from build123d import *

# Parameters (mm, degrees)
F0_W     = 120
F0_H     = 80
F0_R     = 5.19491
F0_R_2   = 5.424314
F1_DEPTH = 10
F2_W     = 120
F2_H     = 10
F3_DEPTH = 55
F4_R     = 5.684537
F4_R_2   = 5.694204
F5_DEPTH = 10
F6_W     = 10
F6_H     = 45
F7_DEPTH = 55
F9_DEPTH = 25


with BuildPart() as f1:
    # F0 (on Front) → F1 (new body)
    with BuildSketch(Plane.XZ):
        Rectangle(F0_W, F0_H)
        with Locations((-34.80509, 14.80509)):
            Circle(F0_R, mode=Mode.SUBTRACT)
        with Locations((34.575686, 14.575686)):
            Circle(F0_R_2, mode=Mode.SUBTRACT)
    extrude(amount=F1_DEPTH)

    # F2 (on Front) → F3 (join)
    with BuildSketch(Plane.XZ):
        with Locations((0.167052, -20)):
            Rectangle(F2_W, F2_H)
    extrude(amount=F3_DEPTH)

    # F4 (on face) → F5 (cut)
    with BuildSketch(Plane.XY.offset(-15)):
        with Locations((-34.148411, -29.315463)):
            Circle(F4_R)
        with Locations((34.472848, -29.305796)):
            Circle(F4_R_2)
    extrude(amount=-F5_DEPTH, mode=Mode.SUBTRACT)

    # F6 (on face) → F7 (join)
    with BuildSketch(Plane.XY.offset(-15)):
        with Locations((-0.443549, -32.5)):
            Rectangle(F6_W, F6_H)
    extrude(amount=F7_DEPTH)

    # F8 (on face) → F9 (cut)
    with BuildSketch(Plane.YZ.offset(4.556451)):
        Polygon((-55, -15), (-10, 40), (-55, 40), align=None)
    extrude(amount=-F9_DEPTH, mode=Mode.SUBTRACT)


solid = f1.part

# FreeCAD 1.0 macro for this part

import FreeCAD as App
import Part
import Sketcher


def add_polygon(sketch, points):
    """Adds a closed chain of lines whose ends are joined by coincident constraints."""
    first, n = sketch.GeometryCount, len(points)
    for a, b in zip(points, points[1:] + points[:1]):
        sketch.addGeometry(Part.LineSegment(App.Vector(*a, 0), App.Vector(*b, 0)), False)
    for i in range(n):
        sketch.addConstraint(Sketcher.Constraint("Coincident", first + i, 2, first + (i + 1) % n, 1))

doc = App.newDocument("Part")
body = doc.addObject("PartDesign::Body", "Body")

# Sketch on XZ plane
sketch1 = body.newObject("Sketcher::SketchObject", "Sketch")
sketch1.AttachmentSupport = (doc.getObject("XZ_Plane"), [""])
sketch1.MapMode = "FlatFace"
add_polygon(sketch1, [(-60, 40), (-60, -40), (60, -40), (60, 40)])  # lines 0-3
sketch1.addGeometry(Part.Circle(App.Vector(35, 15, 0), App.Vector(0, 0, 1), 5), False)  # 4
sketch1.addGeometry(Part.Circle(App.Vector(-35, 15, 0), App.Vector(0, 0, 1), 5), False)  # 5
sketch1.addConstraint(Sketcher.Constraint("Vertical", 0))
sketch1.addConstraint(Sketcher.Constraint("Horizontal", 1))
sketch1.addConstraint(Sketcher.Constraint("Vertical", 2))
sketch1.addConstraint(Sketcher.Constraint("Horizontal", 3))
sketch1.addConstraint(Sketcher.Constraint("Symmetric", 0, 2, 2, 2, -1, 1))
sketch1.addConstraint(Sketcher.Constraint("DistanceX", 1, 1, 1, 2, 120.0))
sketch1.addConstraint(Sketcher.Constraint("DistanceY", 0, 2, 0, 1, 80.0))
sketch1.addConstraint(Sketcher.Constraint("Diameter", 5, 10.38982))
sketch1.addConstraint(Sketcher.Constraint("Diameter", 4, 10.848628))
sketch1.addConstraint(Sketcher.Constraint("DistanceX", 5, 3, -1, 1, 34.80509))
sketch1.addConstraint(Sketcher.Constraint("DistanceY", -1, 1, 5, 3, 14.80509))
sketch1.addConstraint(Sketcher.Constraint("DistanceX", -1, 1, 4, 3, 34.575686))
sketch1.addConstraint(Sketcher.Constraint("DistanceY", -1, 1, 4, 3, 14.575686))
pad1 = body.newObject("PartDesign::Pad", "Pad")
pad1.Profile = sketch1
pad1.Length = 10

# Sketch on XZ plane
sketch2 = body.newObject("Sketcher::SketchObject", "Sketch001")
sketch2.AttachmentSupport = (doc.getObject("XZ_Plane"), [""])
sketch2.MapMode = "FlatFace"
add_polygon(sketch2, [(-60, -15), (-60, -25), (60, -25), (60, -15)])  # lines 0-3
sketch2.addConstraint(Sketcher.Constraint("Vertical", 0))
sketch2.addConstraint(Sketcher.Constraint("Horizontal", 1))
sketch2.addConstraint(Sketcher.Constraint("Vertical", 2))
sketch2.addConstraint(Sketcher.Constraint("Horizontal", 3))
sketch2.addConstraint(Sketcher.Constraint("DistanceX", 1, 1, 1, 2, 120.0))
sketch2.addConstraint(Sketcher.Constraint("DistanceY", 0, 2, 0, 1, 10.0))
sketch2.addConstraint(Sketcher.Constraint("DistanceY", 0, 2, -1, 1, 25.0))
sketch2.addConstraint(Sketcher.Constraint("DistanceX", 0, 2, -1, 1, 59.832948))
pad2 = body.newObject("PartDesign::Pad", "Pad001")
pad2.Profile = sketch2
pad2.Length = 55

# Sketch on XY plane
sketch3 = body.newObject("Sketcher::SketchObject", "Sketch002")
sketch3.AttachmentSupport = (doc.getObject("XY_Plane"), [""])
sketch3.MapMode = "FlatFace"
sketch3.AttachmentOffset = App.Placement(App.Vector(0, 0, -15), App.Rotation())
sketch3.addGeometry(Part.Circle(App.Vector(-34, -29, 0), App.Vector(0, 0, 1), 6), False)
sketch3.addGeometry(Part.Circle(App.Vector(34, -29, 0), App.Vector(0, 0, 1), 6), False)
sketch3.addConstraint(Sketcher.Constraint("Diameter", 0, 11.369074))
sketch3.addConstraint(Sketcher.Constraint("Diameter", 1, 11.388408))
sketch3.addConstraint(Sketcher.Constraint("DistanceX", 0, 3, -1, 1, 34.148411))
sketch3.addConstraint(Sketcher.Constraint("DistanceX", 0, 3, 1, 3, 68.621259))
sketch3.addConstraint(Sketcher.Constraint("DistanceY", 0, 3, -1, 1, 29.315463))
sketch3.addConstraint(Sketcher.Constraint("DistanceY", 1, 3, -1, 1, 29.305796))
pocket1 = body.newObject("PartDesign::Pocket", "Pocket")
pocket1.Profile = sketch3
pocket1.Length = 10

# Sketch on XY plane
sketch4 = body.newObject("Sketcher::SketchObject", "Sketch003")
sketch4.AttachmentSupport = (doc.getObject("XY_Plane"), [""])
sketch4.MapMode = "FlatFace"
sketch4.AttachmentOffset = App.Placement(App.Vector(0, 0, -15), App.Rotation())
add_polygon(sketch4, [(-5, -10), (-5, -55), (5, -55), (5, -10)])  # lines 0-3
sketch4.addConstraint(Sketcher.Constraint("Vertical", 0))
sketch4.addConstraint(Sketcher.Constraint("Horizontal", 1))
sketch4.addConstraint(Sketcher.Constraint("Vertical", 2))
sketch4.addConstraint(Sketcher.Constraint("Horizontal", 3))
sketch4.addConstraint(Sketcher.Constraint("DistanceX", 1, 1, 1, 2, 10.0))
sketch4.addConstraint(Sketcher.Constraint("DistanceY", 0, 2, 0, 1, 45.0))
sketch4.addConstraint(Sketcher.Constraint("DistanceY", 0, 2, -1, 1, 55.0))
sketch4.addConstraint(Sketcher.Constraint("DistanceX", 0, 2, -1, 1, 5.443549))
pad3 = body.newObject("PartDesign::Pad", "Pad002")
pad3.Profile = sketch4
pad3.Length = 55

# Sketch on YZ plane
sketch5 = body.newObject("Sketcher::SketchObject", "Sketch004")
sketch5.AttachmentSupport = (doc.getObject("YZ_Plane"), [""])
sketch5.MapMode = "FlatFace"
sketch5.AttachmentOffset = App.Placement(App.Vector(0, 0, 4.556451), App.Rotation())
add_polygon(sketch5, [(-55, -15), (-10, 40), (-55, 40)])  # lines 0-2
sketch5.addConstraint(Sketcher.Constraint("Horizontal", 1))
sketch5.addConstraint(Sketcher.Constraint("Vertical", 2))
sketch5.addConstraint(Sketcher.Constraint("DistanceX", 1, 2, 1, 1, 45.0))
sketch5.addConstraint(Sketcher.Constraint("DistanceY", 2, 2, 2, 1, 55.0))
sketch5.addConstraint(Sketcher.Constraint("DistanceX", 0, 2, -1, 1, 10.0))
sketch5.addConstraint(Sketcher.Constraint("DistanceY", -1, 1, 0, 2, 40.0))
pocket2 = body.newObject("PartDesign::Pocket", "Pocket001")
pocket2.Profile = sketch5
pocket2.Length = 25

doc.recompute()
